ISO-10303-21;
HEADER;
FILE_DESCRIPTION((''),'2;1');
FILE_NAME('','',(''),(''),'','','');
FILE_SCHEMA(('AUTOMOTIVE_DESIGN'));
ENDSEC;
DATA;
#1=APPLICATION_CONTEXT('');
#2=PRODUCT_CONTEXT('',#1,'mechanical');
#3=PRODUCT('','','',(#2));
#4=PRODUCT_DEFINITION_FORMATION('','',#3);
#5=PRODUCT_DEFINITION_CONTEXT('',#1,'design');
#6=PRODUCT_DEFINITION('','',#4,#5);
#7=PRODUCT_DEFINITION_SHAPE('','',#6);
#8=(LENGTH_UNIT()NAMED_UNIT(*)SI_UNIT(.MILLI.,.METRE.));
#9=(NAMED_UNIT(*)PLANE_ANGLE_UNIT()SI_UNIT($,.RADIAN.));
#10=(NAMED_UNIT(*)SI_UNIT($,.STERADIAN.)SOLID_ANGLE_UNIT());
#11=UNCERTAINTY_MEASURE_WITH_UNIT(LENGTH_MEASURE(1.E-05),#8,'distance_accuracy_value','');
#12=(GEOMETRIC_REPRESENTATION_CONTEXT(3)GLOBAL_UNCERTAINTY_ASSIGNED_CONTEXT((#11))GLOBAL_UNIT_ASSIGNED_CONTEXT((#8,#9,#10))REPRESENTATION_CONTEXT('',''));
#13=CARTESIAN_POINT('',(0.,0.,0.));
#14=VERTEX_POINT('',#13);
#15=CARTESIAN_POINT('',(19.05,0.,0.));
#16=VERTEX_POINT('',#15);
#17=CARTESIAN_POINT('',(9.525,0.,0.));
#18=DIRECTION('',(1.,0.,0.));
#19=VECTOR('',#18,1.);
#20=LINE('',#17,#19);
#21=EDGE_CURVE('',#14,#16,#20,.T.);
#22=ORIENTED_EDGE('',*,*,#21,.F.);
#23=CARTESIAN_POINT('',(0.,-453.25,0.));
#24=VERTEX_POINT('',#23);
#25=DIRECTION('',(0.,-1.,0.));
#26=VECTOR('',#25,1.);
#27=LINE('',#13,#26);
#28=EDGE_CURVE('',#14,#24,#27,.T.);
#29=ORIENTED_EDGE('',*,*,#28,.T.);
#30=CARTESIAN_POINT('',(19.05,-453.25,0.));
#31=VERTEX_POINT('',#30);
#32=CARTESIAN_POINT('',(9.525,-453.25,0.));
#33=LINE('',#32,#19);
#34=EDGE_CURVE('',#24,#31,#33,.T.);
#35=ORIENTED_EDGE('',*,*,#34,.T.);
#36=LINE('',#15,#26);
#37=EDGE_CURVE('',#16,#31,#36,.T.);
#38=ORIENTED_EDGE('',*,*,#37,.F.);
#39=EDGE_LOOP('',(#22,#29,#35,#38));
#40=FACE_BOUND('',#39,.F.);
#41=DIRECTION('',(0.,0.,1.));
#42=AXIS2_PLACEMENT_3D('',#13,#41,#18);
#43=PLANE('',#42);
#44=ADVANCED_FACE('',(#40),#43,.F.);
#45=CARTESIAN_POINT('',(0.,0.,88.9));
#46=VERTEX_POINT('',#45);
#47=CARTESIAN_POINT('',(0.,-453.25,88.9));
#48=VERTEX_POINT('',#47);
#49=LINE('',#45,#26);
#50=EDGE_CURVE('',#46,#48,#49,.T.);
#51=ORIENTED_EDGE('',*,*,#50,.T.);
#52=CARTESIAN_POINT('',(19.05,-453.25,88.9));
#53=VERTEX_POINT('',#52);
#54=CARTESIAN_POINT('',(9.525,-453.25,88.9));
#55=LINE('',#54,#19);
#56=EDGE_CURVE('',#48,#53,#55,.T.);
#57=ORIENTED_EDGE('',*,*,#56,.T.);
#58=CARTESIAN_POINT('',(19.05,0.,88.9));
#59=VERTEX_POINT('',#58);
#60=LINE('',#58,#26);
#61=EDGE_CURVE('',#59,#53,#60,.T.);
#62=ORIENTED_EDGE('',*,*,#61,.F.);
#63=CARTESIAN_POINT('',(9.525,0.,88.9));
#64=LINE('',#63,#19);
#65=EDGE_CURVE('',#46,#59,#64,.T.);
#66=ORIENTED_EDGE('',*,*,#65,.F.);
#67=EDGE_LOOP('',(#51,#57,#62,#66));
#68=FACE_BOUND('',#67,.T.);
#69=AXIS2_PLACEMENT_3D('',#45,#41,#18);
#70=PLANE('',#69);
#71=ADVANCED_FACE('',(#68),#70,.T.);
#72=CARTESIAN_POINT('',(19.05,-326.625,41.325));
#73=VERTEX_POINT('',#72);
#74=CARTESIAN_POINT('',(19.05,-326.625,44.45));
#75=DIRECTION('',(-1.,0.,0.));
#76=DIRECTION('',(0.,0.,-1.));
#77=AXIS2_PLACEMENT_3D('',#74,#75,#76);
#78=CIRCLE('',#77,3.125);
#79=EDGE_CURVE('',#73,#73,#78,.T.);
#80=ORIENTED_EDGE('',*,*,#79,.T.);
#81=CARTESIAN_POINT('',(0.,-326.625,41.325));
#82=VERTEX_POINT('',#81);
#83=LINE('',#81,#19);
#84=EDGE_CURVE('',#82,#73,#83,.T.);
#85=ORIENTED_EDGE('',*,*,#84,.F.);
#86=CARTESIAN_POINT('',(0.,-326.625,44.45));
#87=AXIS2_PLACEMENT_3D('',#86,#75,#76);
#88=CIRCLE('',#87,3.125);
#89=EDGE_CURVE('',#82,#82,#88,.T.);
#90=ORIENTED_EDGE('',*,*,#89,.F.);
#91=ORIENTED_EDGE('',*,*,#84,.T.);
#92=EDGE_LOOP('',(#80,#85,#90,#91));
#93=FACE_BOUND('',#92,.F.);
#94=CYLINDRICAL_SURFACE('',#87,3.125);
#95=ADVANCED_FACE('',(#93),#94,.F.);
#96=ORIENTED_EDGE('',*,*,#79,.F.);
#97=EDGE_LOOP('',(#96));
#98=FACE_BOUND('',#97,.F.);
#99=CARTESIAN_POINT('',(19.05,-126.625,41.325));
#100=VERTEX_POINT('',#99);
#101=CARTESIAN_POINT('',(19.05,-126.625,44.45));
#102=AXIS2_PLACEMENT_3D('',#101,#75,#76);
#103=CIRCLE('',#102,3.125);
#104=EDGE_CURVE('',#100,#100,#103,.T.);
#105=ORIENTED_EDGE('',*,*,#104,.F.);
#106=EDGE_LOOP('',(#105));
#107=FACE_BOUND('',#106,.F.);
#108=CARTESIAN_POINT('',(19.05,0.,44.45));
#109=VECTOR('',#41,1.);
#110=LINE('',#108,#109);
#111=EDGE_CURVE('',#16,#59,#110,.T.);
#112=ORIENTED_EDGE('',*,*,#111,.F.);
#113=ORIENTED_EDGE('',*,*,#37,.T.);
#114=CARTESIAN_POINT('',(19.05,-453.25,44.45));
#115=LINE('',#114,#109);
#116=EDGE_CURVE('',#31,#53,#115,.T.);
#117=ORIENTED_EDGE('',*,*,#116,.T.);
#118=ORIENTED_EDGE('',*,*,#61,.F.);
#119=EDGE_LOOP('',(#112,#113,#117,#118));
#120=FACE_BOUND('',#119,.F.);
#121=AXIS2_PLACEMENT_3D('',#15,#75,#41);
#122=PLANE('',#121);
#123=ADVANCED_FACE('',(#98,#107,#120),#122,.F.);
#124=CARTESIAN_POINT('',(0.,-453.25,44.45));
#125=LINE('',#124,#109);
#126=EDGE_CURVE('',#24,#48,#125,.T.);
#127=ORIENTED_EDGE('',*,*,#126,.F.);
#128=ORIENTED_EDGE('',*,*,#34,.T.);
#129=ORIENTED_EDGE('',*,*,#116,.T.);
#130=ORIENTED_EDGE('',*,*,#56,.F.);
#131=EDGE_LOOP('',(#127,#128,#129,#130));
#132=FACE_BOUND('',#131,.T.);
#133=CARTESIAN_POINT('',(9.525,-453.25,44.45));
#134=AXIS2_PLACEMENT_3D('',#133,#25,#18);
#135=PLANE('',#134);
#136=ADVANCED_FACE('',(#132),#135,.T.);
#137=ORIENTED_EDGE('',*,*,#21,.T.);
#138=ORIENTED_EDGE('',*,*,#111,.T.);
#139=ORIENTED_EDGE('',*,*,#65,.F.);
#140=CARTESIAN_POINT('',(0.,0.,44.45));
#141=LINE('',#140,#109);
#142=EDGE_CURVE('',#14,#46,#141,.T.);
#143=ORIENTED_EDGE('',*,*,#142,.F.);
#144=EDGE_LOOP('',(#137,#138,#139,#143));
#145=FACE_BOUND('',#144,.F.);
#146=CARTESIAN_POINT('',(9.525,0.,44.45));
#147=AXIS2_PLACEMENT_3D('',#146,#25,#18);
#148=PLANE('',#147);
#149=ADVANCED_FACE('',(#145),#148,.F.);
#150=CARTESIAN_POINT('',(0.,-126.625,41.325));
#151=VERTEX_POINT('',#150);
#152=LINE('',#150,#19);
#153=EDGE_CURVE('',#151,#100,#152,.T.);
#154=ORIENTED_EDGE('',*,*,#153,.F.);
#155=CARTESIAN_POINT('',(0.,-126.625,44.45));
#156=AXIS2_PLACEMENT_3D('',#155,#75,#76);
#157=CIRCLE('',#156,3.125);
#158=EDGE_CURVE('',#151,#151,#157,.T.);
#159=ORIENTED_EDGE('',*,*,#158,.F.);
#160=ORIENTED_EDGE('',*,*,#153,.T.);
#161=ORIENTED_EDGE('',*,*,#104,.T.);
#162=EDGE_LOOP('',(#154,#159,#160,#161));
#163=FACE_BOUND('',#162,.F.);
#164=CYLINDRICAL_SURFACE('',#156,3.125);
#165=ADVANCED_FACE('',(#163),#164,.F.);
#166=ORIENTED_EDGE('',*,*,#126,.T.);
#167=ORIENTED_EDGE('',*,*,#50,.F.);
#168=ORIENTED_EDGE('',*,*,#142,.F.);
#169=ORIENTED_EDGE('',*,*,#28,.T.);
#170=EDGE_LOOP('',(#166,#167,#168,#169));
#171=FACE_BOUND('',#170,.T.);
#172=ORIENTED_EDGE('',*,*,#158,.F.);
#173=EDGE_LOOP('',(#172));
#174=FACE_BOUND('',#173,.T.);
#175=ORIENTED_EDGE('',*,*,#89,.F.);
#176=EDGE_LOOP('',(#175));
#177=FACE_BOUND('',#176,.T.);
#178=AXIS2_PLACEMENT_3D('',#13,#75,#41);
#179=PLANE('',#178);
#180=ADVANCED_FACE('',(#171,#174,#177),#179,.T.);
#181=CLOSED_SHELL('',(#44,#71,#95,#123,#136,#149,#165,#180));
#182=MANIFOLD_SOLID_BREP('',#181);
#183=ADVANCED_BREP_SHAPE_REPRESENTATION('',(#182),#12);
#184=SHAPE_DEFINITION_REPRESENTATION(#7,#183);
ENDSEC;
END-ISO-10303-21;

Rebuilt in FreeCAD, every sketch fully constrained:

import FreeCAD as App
import Part
import Sketcher
Q = App.Units.Quantity

doc = App.newDocument("Part")
body = doc.addObject("PartDesign::Body", "Body")

sketch1 = body.newObject("Sketcher::SketchObject", "Sketch")
sketch1.AttachmentSupport = (doc.getObject("XZ_Plane"), [""])
sketch1.MapMode = "FlatFace"
sketch1.addGeometry([
    Part.LineSegment(App.Vector(0, 88.9, 0), App.Vector(0, 0, 0)),
    Part.LineSegment(App.Vector(0, 0, 0), App.Vector(19.05, 0, 0)),
    Part.LineSegment(App.Vector(19.05, 0, 0), App.Vector(19.05, 88.9, 0)),
    Part.LineSegment(App.Vector(19.05, 88.9, 0), App.Vector(0, 88.9, 0)),
], False)
sketch1.addConstraint([
    Sketcher.Constraint("Coincident", 0, 2, 1, 1),
    Sketcher.Constraint("Coincident", 1, 2, 2, 1),
    Sketcher.Constraint("Coincident", 2, 2, 3, 1),
    Sketcher.Constraint("Coincident", 3, 2, 0, 1),
    Sketcher.Constraint("Vertical", 0),
    Sketcher.Constraint("Horizontal", 1),
    Sketcher.Constraint("Vertical", 2),
    Sketcher.Constraint("Horizontal", 3),
    Sketcher.Constraint("Coincident", 0, 2, -1, 1),
    Sketcher.Constraint("DistanceY", 0, 2, 0, 1, Q("3.5 in")),
    Sketcher.Constraint("DistanceX", 1, 1, 1, 2, Q("0.75 in")),
])
pad1 = body.newObject("PartDesign::Pad", "Pad")
pad1.Profile = sketch1
pad1.Length = 453.25

sketch2 = body.newObject("Sketcher::SketchObject", "Sketch001")
sketch2.AttachmentSupport = (doc.getObject("YZ_Plane"), [""])
sketch2.MapMode = "FlatFace"
sketch2.addGeometry([
    Part.Circle(App.Vector(-126.625, 44.45, 0), App.Vector(0, 0, 1), 3.125),
    Part.Circle(App.Vector(-326.625, 44.45, 0), App.Vector(0, 0, 1), 3.125),
], False)
sketch2.addConstraint([
    Sketcher.Constraint("Equal", 0, 1),
    Sketcher.Constraint("Horizontal", 0, 3, 1, 3),
    Sketcher.Constraint("Diameter", 0, Q("6.25 mm")),
    Sketcher.Constraint("DistanceY", -1, 1, 0, 3, Q("1.75 in")),
    Sketcher.Constraint("DistanceX", 0, 3, -1, 1, Q("126.625 mm")),
    Sketcher.Constraint("DistanceX", 1, 3, -1, 1, Q("326.625 mm")),
])
pocket1 = body.newObject("PartDesign::Pocket", "Pocket")
pocket1.Profile = sketch2
pocket1.Type = "ThroughAll"
pocket1.Reversed = True

doc.recompute()
